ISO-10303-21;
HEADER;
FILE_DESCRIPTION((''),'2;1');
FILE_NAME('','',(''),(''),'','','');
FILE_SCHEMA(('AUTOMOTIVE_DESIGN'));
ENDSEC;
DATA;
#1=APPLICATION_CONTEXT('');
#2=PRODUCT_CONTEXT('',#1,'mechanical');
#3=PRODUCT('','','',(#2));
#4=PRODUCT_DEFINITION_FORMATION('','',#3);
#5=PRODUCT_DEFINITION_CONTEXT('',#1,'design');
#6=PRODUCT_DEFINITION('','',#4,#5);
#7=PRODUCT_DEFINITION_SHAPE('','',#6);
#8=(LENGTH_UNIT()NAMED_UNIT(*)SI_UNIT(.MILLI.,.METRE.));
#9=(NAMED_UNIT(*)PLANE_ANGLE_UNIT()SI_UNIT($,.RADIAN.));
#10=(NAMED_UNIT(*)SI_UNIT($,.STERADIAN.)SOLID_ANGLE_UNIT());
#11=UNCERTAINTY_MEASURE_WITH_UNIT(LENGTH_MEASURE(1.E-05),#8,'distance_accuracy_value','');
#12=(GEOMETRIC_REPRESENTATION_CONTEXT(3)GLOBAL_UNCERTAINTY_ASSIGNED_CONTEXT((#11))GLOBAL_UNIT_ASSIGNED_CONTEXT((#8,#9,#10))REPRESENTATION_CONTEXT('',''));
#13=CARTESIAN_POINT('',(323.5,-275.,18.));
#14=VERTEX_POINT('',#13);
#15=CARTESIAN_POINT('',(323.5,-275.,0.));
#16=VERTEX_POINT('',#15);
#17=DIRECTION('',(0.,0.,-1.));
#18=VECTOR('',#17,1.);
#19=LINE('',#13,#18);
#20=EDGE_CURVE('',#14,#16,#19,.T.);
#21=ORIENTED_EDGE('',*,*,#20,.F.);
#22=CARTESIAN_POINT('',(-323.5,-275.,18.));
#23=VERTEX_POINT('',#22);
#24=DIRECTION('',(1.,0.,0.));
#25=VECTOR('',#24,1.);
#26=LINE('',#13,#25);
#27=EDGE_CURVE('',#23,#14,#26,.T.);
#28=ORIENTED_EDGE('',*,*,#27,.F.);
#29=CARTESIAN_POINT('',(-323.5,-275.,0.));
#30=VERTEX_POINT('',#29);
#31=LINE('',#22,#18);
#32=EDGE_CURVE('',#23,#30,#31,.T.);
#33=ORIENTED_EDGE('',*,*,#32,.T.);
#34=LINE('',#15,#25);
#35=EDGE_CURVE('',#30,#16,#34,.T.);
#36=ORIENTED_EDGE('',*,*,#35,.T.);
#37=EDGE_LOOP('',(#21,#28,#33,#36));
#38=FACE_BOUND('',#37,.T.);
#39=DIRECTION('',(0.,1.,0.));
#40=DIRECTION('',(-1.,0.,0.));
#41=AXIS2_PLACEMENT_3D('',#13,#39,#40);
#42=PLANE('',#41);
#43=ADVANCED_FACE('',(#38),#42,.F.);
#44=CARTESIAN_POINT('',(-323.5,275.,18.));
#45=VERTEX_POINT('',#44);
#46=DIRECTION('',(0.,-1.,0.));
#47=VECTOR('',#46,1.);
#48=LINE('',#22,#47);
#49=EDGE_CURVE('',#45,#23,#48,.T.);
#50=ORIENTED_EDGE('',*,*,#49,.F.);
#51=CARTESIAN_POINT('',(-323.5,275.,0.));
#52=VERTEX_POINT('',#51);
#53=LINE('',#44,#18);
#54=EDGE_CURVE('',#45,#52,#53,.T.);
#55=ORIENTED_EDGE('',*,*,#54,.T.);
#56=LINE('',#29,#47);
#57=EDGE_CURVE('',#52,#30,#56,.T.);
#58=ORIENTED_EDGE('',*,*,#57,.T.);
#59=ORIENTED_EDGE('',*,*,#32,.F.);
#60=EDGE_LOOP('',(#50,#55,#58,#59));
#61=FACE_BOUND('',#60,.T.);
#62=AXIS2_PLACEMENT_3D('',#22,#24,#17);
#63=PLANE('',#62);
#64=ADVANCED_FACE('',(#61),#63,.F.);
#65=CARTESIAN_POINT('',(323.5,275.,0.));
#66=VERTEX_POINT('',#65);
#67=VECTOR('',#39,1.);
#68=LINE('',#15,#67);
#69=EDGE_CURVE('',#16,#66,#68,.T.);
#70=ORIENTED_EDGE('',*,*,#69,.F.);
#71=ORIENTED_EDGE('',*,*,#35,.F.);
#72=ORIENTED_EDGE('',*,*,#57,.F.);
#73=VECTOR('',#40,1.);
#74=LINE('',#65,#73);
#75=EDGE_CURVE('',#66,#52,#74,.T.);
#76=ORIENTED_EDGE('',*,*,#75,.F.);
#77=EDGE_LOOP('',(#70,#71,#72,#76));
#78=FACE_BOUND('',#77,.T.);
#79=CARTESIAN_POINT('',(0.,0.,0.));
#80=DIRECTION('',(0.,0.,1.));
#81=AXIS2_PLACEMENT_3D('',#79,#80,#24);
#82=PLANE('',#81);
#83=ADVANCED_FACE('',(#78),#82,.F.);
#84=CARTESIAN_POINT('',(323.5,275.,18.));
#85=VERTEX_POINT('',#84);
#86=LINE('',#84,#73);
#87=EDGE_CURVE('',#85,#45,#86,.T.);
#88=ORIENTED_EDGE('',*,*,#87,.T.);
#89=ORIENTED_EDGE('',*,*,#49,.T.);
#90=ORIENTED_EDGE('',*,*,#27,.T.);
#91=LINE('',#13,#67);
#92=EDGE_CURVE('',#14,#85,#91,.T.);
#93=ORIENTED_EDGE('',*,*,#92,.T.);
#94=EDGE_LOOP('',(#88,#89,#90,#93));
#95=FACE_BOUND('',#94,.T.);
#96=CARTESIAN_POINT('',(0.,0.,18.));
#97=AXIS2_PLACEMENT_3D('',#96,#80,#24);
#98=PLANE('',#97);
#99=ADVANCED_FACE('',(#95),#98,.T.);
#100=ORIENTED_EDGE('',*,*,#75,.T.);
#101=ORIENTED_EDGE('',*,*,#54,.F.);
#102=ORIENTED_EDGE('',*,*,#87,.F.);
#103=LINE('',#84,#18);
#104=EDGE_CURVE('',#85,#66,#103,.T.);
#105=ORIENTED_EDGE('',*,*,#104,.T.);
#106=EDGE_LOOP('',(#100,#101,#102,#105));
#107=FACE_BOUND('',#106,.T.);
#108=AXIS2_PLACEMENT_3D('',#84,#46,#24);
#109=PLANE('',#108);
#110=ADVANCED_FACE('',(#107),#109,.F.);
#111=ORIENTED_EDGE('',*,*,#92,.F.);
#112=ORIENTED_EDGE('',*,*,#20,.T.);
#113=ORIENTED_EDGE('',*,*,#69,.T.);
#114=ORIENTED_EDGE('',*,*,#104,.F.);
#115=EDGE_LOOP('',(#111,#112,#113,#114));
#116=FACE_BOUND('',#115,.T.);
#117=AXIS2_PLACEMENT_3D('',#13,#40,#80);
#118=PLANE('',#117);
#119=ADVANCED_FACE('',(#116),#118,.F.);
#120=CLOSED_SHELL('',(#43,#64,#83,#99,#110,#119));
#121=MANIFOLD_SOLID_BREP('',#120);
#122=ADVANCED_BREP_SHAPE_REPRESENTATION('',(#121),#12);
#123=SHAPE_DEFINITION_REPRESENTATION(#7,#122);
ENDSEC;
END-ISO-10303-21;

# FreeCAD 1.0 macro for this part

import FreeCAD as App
import Part
import Sketcher
from FreeCAD import Vector
Q = App.Units.Quantity


def add_polygon(sketch, points):
    """Adds a closed chain of lines whose ends are joined by coincident constraints."""
    first, n = sketch.GeometryCount, len(points)
    for a, b in zip(points, points[1:] + points[:1]):
        sketch.addGeometry(Part.LineSegment(App.Vector(*a, 0), App.Vector(*b, 0)), False)
    for i in range(n):
        sketch.addConstraint(Sketcher.Constraint("Coincident", first + i, 2, first + (i + 1) % n, 1))

doc = App.newDocument("Part")
body = doc.addObject("PartDesign::Body", "Body")

# Sketch on XY plane
sketch1 = body.newObject("Sketcher::SketchObject", "Sketch")
sketch1.AttachmentSupport = (doc.getObject("XY_Plane"), [""])
sketch1.MapMode = "FlatFace"
add_polygon(sketch1, [(-324, 275), (-324, -275), (324, -275), (324, 275)])  # lines 0-3
sketch1.addConstraint(Sketcher.Constraint("Vertical", 0))
sketch1.addConstraint(Sketcher.Constraint("Horizontal", 1))
sketch1.addConstraint(Sketcher.Constraint("Vertical", 2))
sketch1.addConstraint(Sketcher.Constraint("Horizontal", 3))
sketch1.addConstraint(Sketcher.Constraint("Symmetric", 0, 2, 2, 2, -1, 1))
sketch1.addConstraint(Sketcher.Constraint("DistanceX", 1, 1, 1, 2, Q("647 mm")))
sketch1.addConstraint(Sketcher.Constraint("DistanceY", 0, 2, 0, 1, Q("550 mm")))
pad1 = body.newObject("PartDesign::Pad", "Pad")
pad1.Profile = sketch1
pad1.Length = 18

doc.recompute()
